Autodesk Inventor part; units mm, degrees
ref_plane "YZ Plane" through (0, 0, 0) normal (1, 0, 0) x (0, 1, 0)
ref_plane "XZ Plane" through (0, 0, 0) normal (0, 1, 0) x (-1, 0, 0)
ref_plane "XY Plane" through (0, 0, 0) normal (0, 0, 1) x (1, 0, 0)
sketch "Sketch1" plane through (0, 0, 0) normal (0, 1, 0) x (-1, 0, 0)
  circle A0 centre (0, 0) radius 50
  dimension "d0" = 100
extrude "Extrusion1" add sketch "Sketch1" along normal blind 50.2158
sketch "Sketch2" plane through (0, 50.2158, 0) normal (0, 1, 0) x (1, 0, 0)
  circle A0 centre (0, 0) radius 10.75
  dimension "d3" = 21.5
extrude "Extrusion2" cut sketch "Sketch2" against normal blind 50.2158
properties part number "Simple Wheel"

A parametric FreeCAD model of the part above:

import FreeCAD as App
import Part
import Sketcher
from FreeCAD import Vector
Q = App.Units.Quantity

doc = App.newDocument("Part")
body = doc.addObject("PartDesign::Body", "Body")

sketch1 = body.newObject("Sketcher::SketchObject", "Sketch")
sketch1.AttachmentSupport = (doc.getObject("XZ_Plane"), [""])
sketch1.MapMode = "FlatFace"
sketch1.addGeometry(Part.Circle(Vector(0, 0, 0), Vector(0, 0, 1), 50), False)
sketch1.addConstraint([
    Sketcher.Constraint("Coincident", 0, 3, -1, 1),
    Sketcher.Constraint("Diameter", 0, Q("3.937 in")),
])
pad1 = body.newObject("PartDesign::Pad", "Pad")
pad1.Profile = sketch1
pad1.Length = Q("1.977 in")
pad1.Reversed = True

sketch2 = body.newObject("Sketcher::SketchObject", "Sketch001")
sketch2.AttachmentSupport = (doc.getObject("XZ_Plane"), [""])
sketch2.MapMode = "FlatFace"
sketch2.AttachmentOffset = App.Placement(Vector(0, 0, -1.977 * 25.4), App.Rotation())
sketch2.addGeometry(Part.Circle(Vector(0, 0, 0), Vector(0, 0, 1), 11), False)
sketch2.addConstraint([
    Sketcher.Constraint("Coincident", 0, 3, -1, 1),
    Sketcher.Constraint("Diameter", 0, 21.5),
])
pocket1 = body.newObject("PartDesign::Pocket", "Pocket")
pocket1.Profile = sketch2
pocket1.Length = Q("1.977 in")
pocket1.Reversed = True

doc.recompute()
